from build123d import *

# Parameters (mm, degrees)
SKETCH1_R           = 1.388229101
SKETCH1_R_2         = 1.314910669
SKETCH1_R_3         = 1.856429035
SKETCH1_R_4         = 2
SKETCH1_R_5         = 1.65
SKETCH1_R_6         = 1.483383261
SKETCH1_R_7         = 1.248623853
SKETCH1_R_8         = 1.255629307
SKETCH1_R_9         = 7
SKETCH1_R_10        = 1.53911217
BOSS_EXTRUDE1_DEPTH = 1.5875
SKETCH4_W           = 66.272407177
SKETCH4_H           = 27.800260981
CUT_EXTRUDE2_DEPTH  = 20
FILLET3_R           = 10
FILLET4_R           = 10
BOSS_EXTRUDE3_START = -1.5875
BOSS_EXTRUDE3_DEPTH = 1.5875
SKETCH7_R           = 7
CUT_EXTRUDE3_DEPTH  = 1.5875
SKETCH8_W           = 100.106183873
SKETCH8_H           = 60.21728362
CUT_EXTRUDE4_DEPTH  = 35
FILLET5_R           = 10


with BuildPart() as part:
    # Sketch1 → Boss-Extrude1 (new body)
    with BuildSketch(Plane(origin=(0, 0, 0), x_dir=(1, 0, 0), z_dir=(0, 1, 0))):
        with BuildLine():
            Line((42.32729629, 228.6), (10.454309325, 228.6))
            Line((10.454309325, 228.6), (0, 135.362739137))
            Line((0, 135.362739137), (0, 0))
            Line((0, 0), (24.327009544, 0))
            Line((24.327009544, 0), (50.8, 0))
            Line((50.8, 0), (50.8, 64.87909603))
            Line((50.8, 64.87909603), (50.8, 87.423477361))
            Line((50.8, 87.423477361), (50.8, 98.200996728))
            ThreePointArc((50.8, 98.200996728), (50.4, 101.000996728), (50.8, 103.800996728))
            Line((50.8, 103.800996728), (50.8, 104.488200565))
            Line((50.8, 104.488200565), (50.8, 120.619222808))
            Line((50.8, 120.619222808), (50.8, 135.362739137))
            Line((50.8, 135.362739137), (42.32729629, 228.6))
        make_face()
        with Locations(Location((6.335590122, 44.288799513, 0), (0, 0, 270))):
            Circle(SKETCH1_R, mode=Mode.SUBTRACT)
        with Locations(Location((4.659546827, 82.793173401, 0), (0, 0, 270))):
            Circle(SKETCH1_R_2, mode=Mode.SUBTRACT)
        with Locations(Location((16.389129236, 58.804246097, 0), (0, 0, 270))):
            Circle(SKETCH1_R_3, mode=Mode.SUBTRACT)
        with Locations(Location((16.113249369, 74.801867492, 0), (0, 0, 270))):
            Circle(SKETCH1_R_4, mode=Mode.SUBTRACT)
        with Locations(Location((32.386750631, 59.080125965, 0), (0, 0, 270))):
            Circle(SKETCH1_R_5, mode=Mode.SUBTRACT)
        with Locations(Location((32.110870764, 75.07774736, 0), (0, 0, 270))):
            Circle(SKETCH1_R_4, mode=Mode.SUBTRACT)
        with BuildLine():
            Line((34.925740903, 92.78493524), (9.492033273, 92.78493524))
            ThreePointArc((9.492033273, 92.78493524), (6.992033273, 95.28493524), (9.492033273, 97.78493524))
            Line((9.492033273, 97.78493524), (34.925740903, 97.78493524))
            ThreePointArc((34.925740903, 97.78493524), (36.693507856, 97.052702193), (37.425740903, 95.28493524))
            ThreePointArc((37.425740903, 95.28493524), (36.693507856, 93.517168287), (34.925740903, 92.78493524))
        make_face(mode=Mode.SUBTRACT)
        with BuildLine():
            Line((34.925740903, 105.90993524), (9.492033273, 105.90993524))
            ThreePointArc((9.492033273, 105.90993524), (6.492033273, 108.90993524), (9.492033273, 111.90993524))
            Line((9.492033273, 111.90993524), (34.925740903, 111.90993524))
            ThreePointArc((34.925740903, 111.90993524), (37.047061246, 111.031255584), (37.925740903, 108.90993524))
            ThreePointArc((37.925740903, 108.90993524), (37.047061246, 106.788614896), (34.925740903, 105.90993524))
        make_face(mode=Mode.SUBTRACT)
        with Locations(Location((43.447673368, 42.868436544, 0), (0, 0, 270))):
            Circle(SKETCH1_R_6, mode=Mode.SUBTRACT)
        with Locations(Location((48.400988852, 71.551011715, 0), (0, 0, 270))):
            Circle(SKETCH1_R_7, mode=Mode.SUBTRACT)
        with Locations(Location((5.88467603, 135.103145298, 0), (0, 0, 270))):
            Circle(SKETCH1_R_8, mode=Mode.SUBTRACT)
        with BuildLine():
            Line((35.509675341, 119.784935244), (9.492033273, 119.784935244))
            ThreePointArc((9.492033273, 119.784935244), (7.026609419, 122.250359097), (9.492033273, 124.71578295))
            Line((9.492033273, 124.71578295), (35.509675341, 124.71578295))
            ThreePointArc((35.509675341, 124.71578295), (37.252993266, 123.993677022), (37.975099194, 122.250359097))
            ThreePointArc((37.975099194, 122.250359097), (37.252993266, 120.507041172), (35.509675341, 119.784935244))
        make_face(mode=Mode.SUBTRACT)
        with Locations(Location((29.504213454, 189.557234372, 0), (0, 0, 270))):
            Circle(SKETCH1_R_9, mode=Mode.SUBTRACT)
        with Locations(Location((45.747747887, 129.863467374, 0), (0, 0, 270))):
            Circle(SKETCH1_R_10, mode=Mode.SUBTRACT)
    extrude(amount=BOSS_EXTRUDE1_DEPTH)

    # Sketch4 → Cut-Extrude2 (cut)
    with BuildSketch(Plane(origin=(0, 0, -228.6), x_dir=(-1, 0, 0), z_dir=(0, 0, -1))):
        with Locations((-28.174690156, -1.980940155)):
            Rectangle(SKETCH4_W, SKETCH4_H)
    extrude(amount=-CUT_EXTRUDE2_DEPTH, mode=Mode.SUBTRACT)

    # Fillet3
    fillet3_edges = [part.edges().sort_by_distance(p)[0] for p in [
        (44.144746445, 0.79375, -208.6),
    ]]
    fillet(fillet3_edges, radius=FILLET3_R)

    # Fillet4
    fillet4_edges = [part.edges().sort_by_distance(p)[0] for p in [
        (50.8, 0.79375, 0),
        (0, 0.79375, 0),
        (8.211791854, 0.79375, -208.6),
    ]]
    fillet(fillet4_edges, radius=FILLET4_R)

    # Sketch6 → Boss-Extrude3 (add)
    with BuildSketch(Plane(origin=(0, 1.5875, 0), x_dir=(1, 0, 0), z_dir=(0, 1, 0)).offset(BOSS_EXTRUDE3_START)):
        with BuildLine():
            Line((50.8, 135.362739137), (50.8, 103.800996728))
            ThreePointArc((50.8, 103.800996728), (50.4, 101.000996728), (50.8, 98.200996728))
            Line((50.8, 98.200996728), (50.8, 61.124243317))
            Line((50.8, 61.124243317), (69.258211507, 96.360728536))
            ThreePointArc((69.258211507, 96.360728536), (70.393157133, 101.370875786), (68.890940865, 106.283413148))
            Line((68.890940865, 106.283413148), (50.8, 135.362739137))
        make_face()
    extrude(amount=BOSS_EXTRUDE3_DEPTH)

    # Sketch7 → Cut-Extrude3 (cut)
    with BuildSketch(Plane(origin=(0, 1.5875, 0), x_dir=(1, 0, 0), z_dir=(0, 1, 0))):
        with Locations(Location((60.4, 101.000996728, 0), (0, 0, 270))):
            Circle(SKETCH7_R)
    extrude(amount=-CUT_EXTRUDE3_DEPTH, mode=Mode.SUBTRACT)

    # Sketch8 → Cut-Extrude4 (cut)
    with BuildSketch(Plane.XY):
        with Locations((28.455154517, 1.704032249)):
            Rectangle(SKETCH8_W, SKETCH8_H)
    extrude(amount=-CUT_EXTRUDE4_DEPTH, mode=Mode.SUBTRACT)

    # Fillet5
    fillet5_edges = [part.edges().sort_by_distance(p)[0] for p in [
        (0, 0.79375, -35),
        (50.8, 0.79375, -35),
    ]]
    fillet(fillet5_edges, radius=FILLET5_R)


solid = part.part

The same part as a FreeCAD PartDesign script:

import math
import FreeCAD as App
import Part
import Sketcher

V = App.Vector


def edges_at(feature, points):
    """Names of the edges that pass closest to the given points."""
    edges = feature.Shape.Edges
    near = lambda p: min(range(len(edges)), key=lambda i: edges[i].distToShape(Part.Vertex(*p))[0])
    return sorted({f"Edge{near(p) + 1}" for p in points})

doc = App.newDocument("Part")
body = doc.addObject("PartDesign::Body", "Body")

sketch1 = doc.addObject("Sketcher::SketchObject", "Sketch")
body.addObject(sketch1)
sketch1.AttachmentSupport = (doc.XZ_Plane, [""])
sketch1.MapMode = "FlatFace"
sketch1.addGeometry([
    Part.LineSegment(V(42.3, -228.6, 0), V(10.5, -228.6, 0)),
    Part.LineSegment(V(10.5, -228.6, 0), V(0, -135.4, 0)),
    Part.LineSegment(V(0, -135.4, 0), V(0, 0, 0)),
    Part.LineSegment(V(0, 0, 0), V(50.8, 0, 0)),
    Part.LineSegment(V(50.8, 0, 0), V(50.8, -98.2, 0)),
    Part.ArcOfCircle(Part.Circle(V(60.4, -101, 0), V(0, 0, 1), 10), math.radians(164), math.radians(196)),
    Part.LineSegment(V(50.8, -103.8, 0), V(50.8, -135.4, 0)),
    Part.LineSegment(V(50.8, -135.4, 0), V(42.3, -228.6, 0)),
    Part.Circle(V(6.3, -44.3, 0), V(0, 0, 1), 1.4),
    Part.Circle(V(16.4, -58.8, 0), V(0, 0, 1), 1.9),
    Part.Circle(V(16.1, -74.8, 0), V(0, 0, 1), 2),
    Part.Circle(V(4.7, -82.8, 0), V(0, 0, 1), 1.3),
    Part.ArcOfCircle(Part.Circle(V(34.9, -95.3, 0), V(0, 0, 1), 2.5), math.radians(0), math.radians(90)),
    Part.LineSegment(V(34.9, -92.8, 0), V(9.5, -92.8, 0)),
    Part.ArcOfCircle(Part.Circle(V(9.5, -95.3, 0), V(0, 0, 1), 2.5), math.radians(90), math.radians(270)),
    Part.LineSegment(V(9.5, -97.8, 0), V(34.9, -97.8, 0)),
    Part.ArcOfCircle(Part.Circle(V(34.9, -95.3, 0), V(0, 0, 1), 2.5), math.radians(-90), math.radians(0)),
    Part.ArcOfCircle(Part.Circle(V(34.9, -108.9, 0), V(0, 0, 1), 3), math.radians(0), math.radians(90)),
    Part.LineSegment(V(34.9, -105.9, 0), V(9.5, -105.9, 0)),
    Part.ArcOfCircle(Part.Circle(V(9.5, -108.9, 0), V(0, 0, 1), 3), math.radians(90), math.radians(270)),
    Part.LineSegment(V(9.5, -111.9, 0), V(34.9, -111.9, 0)),
    Part.ArcOfCircle(Part.Circle(V(34.9, -108.9, 0), V(0, 0, 1), 3), math.radians(-90), math.radians(0)),
    Part.Circle(V(32.4, -59.1, 0), V(0, 0, 1), 1.6),
    Part.Circle(V(32.1, -75.1, 0), V(0, 0, 1), 2),
    Part.Circle(V(43.4, -42.9, 0), V(0, 0, 1), 1.5),
    Part.Circle(V(48.4, -71.6, 0), V(0, 0, 1), 1.2),
    Part.Circle(V(5.9, -135.1, 0), V(0, 0, 1), 1.3),
    Part.ArcOfCircle(Part.Circle(V(35.5, -122.3, 0), V(0, 0, 1), 2.5), math.radians(0), math.radians(90)),
    Part.LineSegment(V(35.5, -119.8, 0), V(9.5, -119.8, 0)),
    Part.ArcOfCircle(Part.Circle(V(9.5, -122.3, 0), V(0, 0, 1), 2.5), math.radians(90), math.radians(270)),
    Part.LineSegment(V(9.5, -124.7, 0), V(35.5, -124.7, 0)),
    Part.ArcOfCircle(Part.Circle(V(35.5, -122.3, 0), V(0, 0, 1), 2.5), math.radians(-90), math.radians(0)),
    Part.Circle(V(45.7, -129.9, 0), V(0, 0, 1), 1.5),
    Part.Circle(V(29.5, -189.6, 0), V(0, 0, 1), 7),
], False)
sketch1.addConstraint([
    Sketcher.Constraint("Coincident", 0, 2, 1, 1),
    Sketcher.Constraint("Coincident", 1, 2, 2, 1),
    Sketcher.Constraint("Coincident", 2, 2, 3, 1),
    Sketcher.Constraint("Coincident", 3, 2, 4, 1),
    Sketcher.Constraint("Coincident", 4, 2, 5, 1),
    Sketcher.Constraint("Coincident", 5, 2, 6, 1),
    Sketcher.Constraint("Coincident", 6, 2, 7, 1),
    Sketcher.Constraint("Coincident", 7, 2, 0, 1),
    Sketcher.Constraint("Tangent", 12, 2, 13, 1),
    Sketcher.Constraint("Tangent", 13, 2, 14, 1),
    Sketcher.Constraint("Tangent", 14, 2, 15, 1),
    Sketcher.Constraint("Tangent", 15, 2, 16, 1),
    Sketcher.Constraint("Tangent", 16, 2, 12, 1),
    Sketcher.Constraint("Tangent", 17, 2, 18, 1),
    Sketcher.Constraint("Tangent", 18, 2, 19, 1),
    Sketcher.Constraint("Tangent", 19, 2, 20, 1),
    Sketcher.Constraint("Tangent", 20, 2, 21, 1),
    Sketcher.Constraint("Tangent", 21, 2, 17, 1),
    Sketcher.Constraint("Tangent", 27, 2, 28, 1),
    Sketcher.Constraint("Tangent", 28, 2, 29, 1),
    Sketcher.Constraint("Tangent", 29, 2, 30, 1),
    Sketcher.Constraint("Tangent", 30, 2, 31, 1),
    Sketcher.Constraint("Tangent", 31, 2, 27, 1),
    Sketcher.Constraint("Horizontal", 0),
    Sketcher.Constraint("Vertical", 2),
    Sketcher.Constraint("Horizontal", 3),
    Sketcher.Constraint("Vertical", 4),
    Sketcher.Constraint("Vertical", 6),
    Sketcher.Constraint("Horizontal", 13),
    Sketcher.Constraint("Horizontal", 15),
    Sketcher.Constraint("Horizontal", 18),
    Sketcher.Constraint("Horizontal", 20),
    Sketcher.Constraint("Horizontal", 28),
    Sketcher.Constraint("Horizontal", 30),
    Sketcher.Constraint("Coincident", 2, 2, -1, 1),
    Sketcher.Constraint("Equal", 12, 14),
    Sketcher.Constraint("Equal", 17, 19),
    Sketcher.Constraint("Equal", 10, 23),
    Sketcher.Constraint("Equal", 27, 29),
    Sketcher.Constraint("Horizontal", 1, 2, 6, 2),
    Sketcher.Constraint("Horizontal", 14, 3, 16, 2),
    Sketcher.Constraint("Horizontal", 19, 3, 21, 2),
    Sketcher.Constraint("Horizontal", 29, 3, 31, 2),
    Sketcher.Constraint("Vertical", 16, 3, 17, 3),
    Sketcher.Constraint("Vertical", 14, 3, 19, 3),
    Sketcher.Constraint("Vertical", 19, 3, 29, 3),
    Sketcher.Constraint("Vertical", 4, 2, 5, 2),
    Sketcher.Constraint("Diameter", 10, 4.0),
    Sketcher.Constraint("Diameter", 33, 14.0),
    Sketcher.Constraint("Radius", 5, 10.0),
    Sketcher.Constraint("Radius", 17, 3.0),
    Sketcher.Constraint("Diameter", 22, 3.3),
    Sketcher.Constraint("Radius", 12, 2.5),
    Sketcher.Constraint("DistanceX", 3, 1, 3, 2, 50.8),
    Sketcher.Constraint("DistanceX", -1, 1, 5, 3, 60.4),
    Sketcher.Constraint("DistanceY", 0, 2, -1, 1, 228.6),
    Sketcher.Constraint("Diameter", 8, 2.776458),
    Sketcher.Constraint("Diameter", 9, 3.712858),
    Sketcher.Constraint("Diameter", 11, 2.629821),
    Sketcher.Constraint("Diameter", 26, 2.511259),
    Sketcher.Constraint("Diameter", 24, 2.966767),
    Sketcher.Constraint("Diameter", 25, 2.497248),
    Sketcher.Constraint("Diameter", 32, 3.078224),
    Sketcher.Constraint("Radius", 27, 2.465424),
    Sketcher.Constraint("DistanceY", 17, 3, 12, 3, 13.625),
    Sketcher.Constraint("DistanceY", 27, 2, 20, 2, 7.875),
    Sketcher.Constraint("DistanceY", 2, 1, 2, 2, 135.362739),
    Sketcher.Constraint("DistanceY", 8, 3, -1, 1, 44.2888),
    Sketcher.Constraint("DistanceX", -1, 1, 31, 2, 37.975099),
    Sketcher.Constraint("DistanceX", 10, 3, 22, 3, 16.273501),
    Sketcher.Constraint("DistanceY", 23, 3, 9, 3, 16.273501),
    Sketcher.Constraint("Distance", 1, 93.821529),
    Sketcher.Constraint("DistanceX", 0, 2, 0, 1, 31.872987),
    Sketcher.Constraint("DistanceX", 13, 2, 13, 1, 25.433708),
    Sketcher.Constraint("DistanceX", 28, 2, 28, 1, 26.017642),
    Sketcher.Constraint("DistanceY", 4, 2, 4, 1, 98.200997),
    Sketcher.Constraint("DistanceX", -1, 1, 8, 3, 6.33559),
    Sketcher.Constraint("DistanceX", -1, 1, 9, 3, 16.389129),
    Sketcher.Constraint("DistanceX", -1, 1, 10, 3, 16.113249),
    Sketcher.Constraint("DistanceX", -1, 1, 23, 3, 32.110871),
    Sketcher.Constraint("DistanceX", -1, 1, 25, 3, 48.400989),
    Sketcher.Constraint("DistanceY", 25, 3, -1, 1, 71.551012),
    Sketcher.Constraint("DistanceY", 27, 3, -1, 1, 122.250359),
    Sketcher.Constraint("DistanceY", 5, 3, 9, 3, 42.196751),
    Sketcher.Constraint("DistanceY", 10, 3, 9, 3, 15.997621),
    Sketcher.Constraint("DistanceY", 12, 3, 11, 3, 12.491762),
    Sketcher.Constraint("DistanceY", 22, 3, 9, 3, 0.27588),
    Sketcher.Constraint("DistanceY", 22, 3, 24, 3, 16.211689),
    Sketcher.Constraint("DistanceY", 26, 3, 19, 3, 26.19321),
    Sketcher.Constraint("DistanceY", 32, 3, 27, 3, 7.613108),
    Sketcher.Constraint("DistanceY", 33, 3, 26, 3, 54.454089),
    Sketcher.Constraint("DistanceX", 33, 3, 27, 3, 6.005462),
    Sketcher.Constraint("DistanceX", 0, 2, 32, 3, 35.293439),
    Sketcher.Constraint("DistanceX", 26, 3, 7, 2, 36.44262),
    Sketcher.Constraint("DistanceX", -1, 1, 11, 3, 4.659547),
    Sketcher.Constraint("DistanceX", -1, 1, 24, 3, 43.447673),
])
pad1 = doc.addObject("PartDesign::Pad", "Pad")
body.addObject(pad1)
pad1.Profile = sketch1
pad1.Length = 1.5875
pad1.Reversed = True

sketch2 = doc.addObject("Sketcher::SketchObject", "Sketch001")
body.addObject(sketch2)
sketch2.AttachmentSupport = (doc.XY_Plane, [""])
sketch2.MapMode = "FlatFace"
sketch2.AttachmentOffset = App.Placement(V(0, 0, -228.6), App.Rotation())
sketch2.addGeometry([
    Part.LineSegment(V(61, 12, 0), V(61, -16, 0)),
    Part.LineSegment(V(61, -16, 0), V(-5, -16, 0)),
    Part.LineSegment(V(-5, -16, 0), V(-5, 12, 0)),
    Part.LineSegment(V(-5, 12, 0), V(61, 12, 0)),
], False)
sketch2.addConstraint([
    Sketcher.Constraint("Coincident", 0, 2, 1, 1),
    Sketcher.Constraint("Coincident", 1, 2, 2, 1),
    Sketcher.Constraint("Coincident", 2, 2, 3, 1),
    Sketcher.Constraint("Coincident", 3, 2, 0, 1),
    Sketcher.Constraint("Vertical", 0),
    Sketcher.Constraint("Horizontal", 1),
    Sketcher.Constraint("Vertical", 2),
    Sketcher.Constraint("Horizontal", 3),
    Sketcher.Constraint("DistanceY", 0, 2, 0, 1, 27.800261),
    Sketcher.Constraint("DistanceX", 1, 2, 1, 1, 66.272407),
    Sketcher.Constraint("DistanceY", 0, 2, -1, 1, 15.881071),
    Sketcher.Constraint("DistanceX", -1, 1, 0, 2, 61.310894),
])
pocket1 = doc.addObject("PartDesign::Pocket", "Pocket")
body.addObject(pocket1)
pocket1.Profile = sketch2
pocket1.Length = 20
pocket1.Reversed = True
doc.recompute()

fillet = doc.addObject("PartDesign::Fillet", "Fillet")
body.addObject(fillet)
fillet.Base = (pocket1, edges_at(pocket1, [(44.145, 0.794, -208.6)]))
fillet.Radius = 10
doc.recompute()

fillet2 = doc.addObject("PartDesign::Fillet", "Fillet001")
body.addObject(fillet2)
fillet2.Base = (fillet, edges_at(fillet, [(50.8, 0.794, 0), (0, 0.794, 0), (8.212, 0.794, -208.6)]))
fillet2.Radius = 10

sketch3 = doc.addObject("Sketcher::SketchObject", "Sketch002")
body.addObject(sketch3)
sketch3.AttachmentSupport = (doc.XZ_Plane, [""])
sketch3.MapMode = "FlatFace"
sketch3.addGeometry([
    Part.LineSegment(V(51, -135, 0), V(51, -104, 0)),
    Part.ArcOfCircle(Part.Circle(V(60, -101, 0), V(0, 0, 1), 10), math.radians(164), math.radians(196)),
    Part.LineSegment(V(51, -98, 0), V(51, -61, 0)),
    Part.LineSegment(V(51, -61, 0), V(69, -96, 0)),
    Part.ArcOfCircle(Part.Circle(V(60, -101, 0), V(0, 0, 1), 10), math.radians(-32), math.radians(28)),
    Part.LineSegment(V(69, -106, 0), V(51, -135, 0)),
], False)
sketch3.addConstraint([
    Sketcher.Constraint("Coincident", 0, 2, 1, 2),
    Sketcher.Constraint("Coincident", 1, 1, 2, 1),
    Sketcher.Constraint("Coincident", 2, 2, 3, 1),
    Sketcher.Constraint("Tangent", 3, 2, 4, 2),
    Sketcher.Constraint("Tangent", 4, 1, 5, 1),
    Sketcher.Constraint("Coincident", 5, 2, 0, 1),
    Sketcher.Constraint("Vertical", 0),
    Sketcher.Constraint("Vertical", 2),
    Sketcher.Constraint("Coincident", 4, 3, 1, 3),
    Sketcher.Constraint("Equal", 1, 4),
    Sketcher.Constraint("Vertical", 0, 2, 1, 1),
    Sketcher.Constraint("Radius", 1, 10.0),
    Sketcher.Constraint("DistanceX", -1, 1, 1, 3, 60.4),
    Sketcher.Constraint("DistanceX", -1, 1, 0, 2, 50.8),
    Sketcher.Constraint("Distance", 3, 39.778329),
    Sketcher.Constraint("DistanceY", 0, 1, 0, 2, 31.561742),
    Sketcher.Constraint("DistanceY", 3, 2, -1, 1, 96.360729),
])
pad2 = doc.addObject("PartDesign::Pad", "Pad001")
body.addObject(pad2)
pad2.Profile = sketch3
pad2.Length = 1.5875
pad2.Reversed = True

sketch4 = doc.addObject("Sketcher::SketchObject", "Sketch003")
body.addObject(sketch4)
sketch4.AttachmentSupport = (doc.XZ_Plane, [""])
sketch4.MapMode = "FlatFace"
sketch4.AttachmentOffset = App.Placement(V(0, 0, -1.5875), App.Rotation())
sketch4.addGeometry(Part.Circle(V(60, -101, 0), V(0, 0, 1), 7), False)
sketch4.addConstraint([
    Sketcher.Constraint("Diameter", 0, 14.0),
    Sketcher.Constraint("DistanceX", -1, 1, 0, 3, 60.4),
    Sketcher.Constraint("DistanceY", 0, 3, -1, 1, 101.000997),
])
pocket2 = doc.addObject("PartDesign::Pocket", "Pocket001")
body.addObject(pocket2)
pocket2.Profile = sketch4
pocket2.Length = 1.5875
pocket2.Reversed = True

sketch5 = doc.addObject("Sketcher::SketchObject", "Sketch004")
body.addObject(sketch5)
sketch5.AttachmentSupport = (doc.XY_Plane, [""])
sketch5.MapMode = "FlatFace"
sketch5.addGeometry([
    Part.LineSegment(V(-22, 32, 0), V(-22, -28, 0)),
    Part.LineSegment(V(-22, -28, 0), V(79, -28, 0)),
    Part.LineSegment(V(79, -28, 0), V(79, 32, 0)),
    Part.LineSegment(V(79, 32, 0), V(-22, 32, 0)),
], False)
sketch5.addConstraint([
    Sketcher.Constraint("Coincident", 0, 2, 1, 1),
    Sketcher.Constraint("Coincident", 1, 2, 2, 1),
    Sketcher.Constraint("Coincident", 2, 2, 3, 1),
    Sketcher.Constraint("Coincident", 3, 2, 0, 1),
    Sketcher.Constraint("Vertical", 0),
    Sketcher.Constraint("Horizontal", 1),
    Sketcher.Constraint("Vertical", 2),
    Sketcher.Constraint("Horizontal", 3),
    Sketcher.Constraint("DistanceX", 1, 1, 1, 2, 100.106184),
    Sketcher.Constraint("DistanceY", 0, 2, 0, 1, 60.217284),
    Sketcher.Constraint("DistanceY", 0, 2, -1, 1, 28.40461),
    Sketcher.Constraint("DistanceX", 0, 2, -1, 1, 21.597937),
])
pocket3 = doc.addObject("PartDesign::Pocket", "Pocket002")
body.addObject(pocket3)
pocket3.Profile = sketch5
pocket3.Length = 35
doc.recompute()

fillet3 = doc.addObject("PartDesign::Fillet", "Fillet002")
body.addObject(fillet3)
fillet3.Base = (pocket3, edges_at(pocket3, [(0, 0.794, -35), (50.8, 0.794, -35)]))
fillet3.Radius = 10

doc.recompute()
